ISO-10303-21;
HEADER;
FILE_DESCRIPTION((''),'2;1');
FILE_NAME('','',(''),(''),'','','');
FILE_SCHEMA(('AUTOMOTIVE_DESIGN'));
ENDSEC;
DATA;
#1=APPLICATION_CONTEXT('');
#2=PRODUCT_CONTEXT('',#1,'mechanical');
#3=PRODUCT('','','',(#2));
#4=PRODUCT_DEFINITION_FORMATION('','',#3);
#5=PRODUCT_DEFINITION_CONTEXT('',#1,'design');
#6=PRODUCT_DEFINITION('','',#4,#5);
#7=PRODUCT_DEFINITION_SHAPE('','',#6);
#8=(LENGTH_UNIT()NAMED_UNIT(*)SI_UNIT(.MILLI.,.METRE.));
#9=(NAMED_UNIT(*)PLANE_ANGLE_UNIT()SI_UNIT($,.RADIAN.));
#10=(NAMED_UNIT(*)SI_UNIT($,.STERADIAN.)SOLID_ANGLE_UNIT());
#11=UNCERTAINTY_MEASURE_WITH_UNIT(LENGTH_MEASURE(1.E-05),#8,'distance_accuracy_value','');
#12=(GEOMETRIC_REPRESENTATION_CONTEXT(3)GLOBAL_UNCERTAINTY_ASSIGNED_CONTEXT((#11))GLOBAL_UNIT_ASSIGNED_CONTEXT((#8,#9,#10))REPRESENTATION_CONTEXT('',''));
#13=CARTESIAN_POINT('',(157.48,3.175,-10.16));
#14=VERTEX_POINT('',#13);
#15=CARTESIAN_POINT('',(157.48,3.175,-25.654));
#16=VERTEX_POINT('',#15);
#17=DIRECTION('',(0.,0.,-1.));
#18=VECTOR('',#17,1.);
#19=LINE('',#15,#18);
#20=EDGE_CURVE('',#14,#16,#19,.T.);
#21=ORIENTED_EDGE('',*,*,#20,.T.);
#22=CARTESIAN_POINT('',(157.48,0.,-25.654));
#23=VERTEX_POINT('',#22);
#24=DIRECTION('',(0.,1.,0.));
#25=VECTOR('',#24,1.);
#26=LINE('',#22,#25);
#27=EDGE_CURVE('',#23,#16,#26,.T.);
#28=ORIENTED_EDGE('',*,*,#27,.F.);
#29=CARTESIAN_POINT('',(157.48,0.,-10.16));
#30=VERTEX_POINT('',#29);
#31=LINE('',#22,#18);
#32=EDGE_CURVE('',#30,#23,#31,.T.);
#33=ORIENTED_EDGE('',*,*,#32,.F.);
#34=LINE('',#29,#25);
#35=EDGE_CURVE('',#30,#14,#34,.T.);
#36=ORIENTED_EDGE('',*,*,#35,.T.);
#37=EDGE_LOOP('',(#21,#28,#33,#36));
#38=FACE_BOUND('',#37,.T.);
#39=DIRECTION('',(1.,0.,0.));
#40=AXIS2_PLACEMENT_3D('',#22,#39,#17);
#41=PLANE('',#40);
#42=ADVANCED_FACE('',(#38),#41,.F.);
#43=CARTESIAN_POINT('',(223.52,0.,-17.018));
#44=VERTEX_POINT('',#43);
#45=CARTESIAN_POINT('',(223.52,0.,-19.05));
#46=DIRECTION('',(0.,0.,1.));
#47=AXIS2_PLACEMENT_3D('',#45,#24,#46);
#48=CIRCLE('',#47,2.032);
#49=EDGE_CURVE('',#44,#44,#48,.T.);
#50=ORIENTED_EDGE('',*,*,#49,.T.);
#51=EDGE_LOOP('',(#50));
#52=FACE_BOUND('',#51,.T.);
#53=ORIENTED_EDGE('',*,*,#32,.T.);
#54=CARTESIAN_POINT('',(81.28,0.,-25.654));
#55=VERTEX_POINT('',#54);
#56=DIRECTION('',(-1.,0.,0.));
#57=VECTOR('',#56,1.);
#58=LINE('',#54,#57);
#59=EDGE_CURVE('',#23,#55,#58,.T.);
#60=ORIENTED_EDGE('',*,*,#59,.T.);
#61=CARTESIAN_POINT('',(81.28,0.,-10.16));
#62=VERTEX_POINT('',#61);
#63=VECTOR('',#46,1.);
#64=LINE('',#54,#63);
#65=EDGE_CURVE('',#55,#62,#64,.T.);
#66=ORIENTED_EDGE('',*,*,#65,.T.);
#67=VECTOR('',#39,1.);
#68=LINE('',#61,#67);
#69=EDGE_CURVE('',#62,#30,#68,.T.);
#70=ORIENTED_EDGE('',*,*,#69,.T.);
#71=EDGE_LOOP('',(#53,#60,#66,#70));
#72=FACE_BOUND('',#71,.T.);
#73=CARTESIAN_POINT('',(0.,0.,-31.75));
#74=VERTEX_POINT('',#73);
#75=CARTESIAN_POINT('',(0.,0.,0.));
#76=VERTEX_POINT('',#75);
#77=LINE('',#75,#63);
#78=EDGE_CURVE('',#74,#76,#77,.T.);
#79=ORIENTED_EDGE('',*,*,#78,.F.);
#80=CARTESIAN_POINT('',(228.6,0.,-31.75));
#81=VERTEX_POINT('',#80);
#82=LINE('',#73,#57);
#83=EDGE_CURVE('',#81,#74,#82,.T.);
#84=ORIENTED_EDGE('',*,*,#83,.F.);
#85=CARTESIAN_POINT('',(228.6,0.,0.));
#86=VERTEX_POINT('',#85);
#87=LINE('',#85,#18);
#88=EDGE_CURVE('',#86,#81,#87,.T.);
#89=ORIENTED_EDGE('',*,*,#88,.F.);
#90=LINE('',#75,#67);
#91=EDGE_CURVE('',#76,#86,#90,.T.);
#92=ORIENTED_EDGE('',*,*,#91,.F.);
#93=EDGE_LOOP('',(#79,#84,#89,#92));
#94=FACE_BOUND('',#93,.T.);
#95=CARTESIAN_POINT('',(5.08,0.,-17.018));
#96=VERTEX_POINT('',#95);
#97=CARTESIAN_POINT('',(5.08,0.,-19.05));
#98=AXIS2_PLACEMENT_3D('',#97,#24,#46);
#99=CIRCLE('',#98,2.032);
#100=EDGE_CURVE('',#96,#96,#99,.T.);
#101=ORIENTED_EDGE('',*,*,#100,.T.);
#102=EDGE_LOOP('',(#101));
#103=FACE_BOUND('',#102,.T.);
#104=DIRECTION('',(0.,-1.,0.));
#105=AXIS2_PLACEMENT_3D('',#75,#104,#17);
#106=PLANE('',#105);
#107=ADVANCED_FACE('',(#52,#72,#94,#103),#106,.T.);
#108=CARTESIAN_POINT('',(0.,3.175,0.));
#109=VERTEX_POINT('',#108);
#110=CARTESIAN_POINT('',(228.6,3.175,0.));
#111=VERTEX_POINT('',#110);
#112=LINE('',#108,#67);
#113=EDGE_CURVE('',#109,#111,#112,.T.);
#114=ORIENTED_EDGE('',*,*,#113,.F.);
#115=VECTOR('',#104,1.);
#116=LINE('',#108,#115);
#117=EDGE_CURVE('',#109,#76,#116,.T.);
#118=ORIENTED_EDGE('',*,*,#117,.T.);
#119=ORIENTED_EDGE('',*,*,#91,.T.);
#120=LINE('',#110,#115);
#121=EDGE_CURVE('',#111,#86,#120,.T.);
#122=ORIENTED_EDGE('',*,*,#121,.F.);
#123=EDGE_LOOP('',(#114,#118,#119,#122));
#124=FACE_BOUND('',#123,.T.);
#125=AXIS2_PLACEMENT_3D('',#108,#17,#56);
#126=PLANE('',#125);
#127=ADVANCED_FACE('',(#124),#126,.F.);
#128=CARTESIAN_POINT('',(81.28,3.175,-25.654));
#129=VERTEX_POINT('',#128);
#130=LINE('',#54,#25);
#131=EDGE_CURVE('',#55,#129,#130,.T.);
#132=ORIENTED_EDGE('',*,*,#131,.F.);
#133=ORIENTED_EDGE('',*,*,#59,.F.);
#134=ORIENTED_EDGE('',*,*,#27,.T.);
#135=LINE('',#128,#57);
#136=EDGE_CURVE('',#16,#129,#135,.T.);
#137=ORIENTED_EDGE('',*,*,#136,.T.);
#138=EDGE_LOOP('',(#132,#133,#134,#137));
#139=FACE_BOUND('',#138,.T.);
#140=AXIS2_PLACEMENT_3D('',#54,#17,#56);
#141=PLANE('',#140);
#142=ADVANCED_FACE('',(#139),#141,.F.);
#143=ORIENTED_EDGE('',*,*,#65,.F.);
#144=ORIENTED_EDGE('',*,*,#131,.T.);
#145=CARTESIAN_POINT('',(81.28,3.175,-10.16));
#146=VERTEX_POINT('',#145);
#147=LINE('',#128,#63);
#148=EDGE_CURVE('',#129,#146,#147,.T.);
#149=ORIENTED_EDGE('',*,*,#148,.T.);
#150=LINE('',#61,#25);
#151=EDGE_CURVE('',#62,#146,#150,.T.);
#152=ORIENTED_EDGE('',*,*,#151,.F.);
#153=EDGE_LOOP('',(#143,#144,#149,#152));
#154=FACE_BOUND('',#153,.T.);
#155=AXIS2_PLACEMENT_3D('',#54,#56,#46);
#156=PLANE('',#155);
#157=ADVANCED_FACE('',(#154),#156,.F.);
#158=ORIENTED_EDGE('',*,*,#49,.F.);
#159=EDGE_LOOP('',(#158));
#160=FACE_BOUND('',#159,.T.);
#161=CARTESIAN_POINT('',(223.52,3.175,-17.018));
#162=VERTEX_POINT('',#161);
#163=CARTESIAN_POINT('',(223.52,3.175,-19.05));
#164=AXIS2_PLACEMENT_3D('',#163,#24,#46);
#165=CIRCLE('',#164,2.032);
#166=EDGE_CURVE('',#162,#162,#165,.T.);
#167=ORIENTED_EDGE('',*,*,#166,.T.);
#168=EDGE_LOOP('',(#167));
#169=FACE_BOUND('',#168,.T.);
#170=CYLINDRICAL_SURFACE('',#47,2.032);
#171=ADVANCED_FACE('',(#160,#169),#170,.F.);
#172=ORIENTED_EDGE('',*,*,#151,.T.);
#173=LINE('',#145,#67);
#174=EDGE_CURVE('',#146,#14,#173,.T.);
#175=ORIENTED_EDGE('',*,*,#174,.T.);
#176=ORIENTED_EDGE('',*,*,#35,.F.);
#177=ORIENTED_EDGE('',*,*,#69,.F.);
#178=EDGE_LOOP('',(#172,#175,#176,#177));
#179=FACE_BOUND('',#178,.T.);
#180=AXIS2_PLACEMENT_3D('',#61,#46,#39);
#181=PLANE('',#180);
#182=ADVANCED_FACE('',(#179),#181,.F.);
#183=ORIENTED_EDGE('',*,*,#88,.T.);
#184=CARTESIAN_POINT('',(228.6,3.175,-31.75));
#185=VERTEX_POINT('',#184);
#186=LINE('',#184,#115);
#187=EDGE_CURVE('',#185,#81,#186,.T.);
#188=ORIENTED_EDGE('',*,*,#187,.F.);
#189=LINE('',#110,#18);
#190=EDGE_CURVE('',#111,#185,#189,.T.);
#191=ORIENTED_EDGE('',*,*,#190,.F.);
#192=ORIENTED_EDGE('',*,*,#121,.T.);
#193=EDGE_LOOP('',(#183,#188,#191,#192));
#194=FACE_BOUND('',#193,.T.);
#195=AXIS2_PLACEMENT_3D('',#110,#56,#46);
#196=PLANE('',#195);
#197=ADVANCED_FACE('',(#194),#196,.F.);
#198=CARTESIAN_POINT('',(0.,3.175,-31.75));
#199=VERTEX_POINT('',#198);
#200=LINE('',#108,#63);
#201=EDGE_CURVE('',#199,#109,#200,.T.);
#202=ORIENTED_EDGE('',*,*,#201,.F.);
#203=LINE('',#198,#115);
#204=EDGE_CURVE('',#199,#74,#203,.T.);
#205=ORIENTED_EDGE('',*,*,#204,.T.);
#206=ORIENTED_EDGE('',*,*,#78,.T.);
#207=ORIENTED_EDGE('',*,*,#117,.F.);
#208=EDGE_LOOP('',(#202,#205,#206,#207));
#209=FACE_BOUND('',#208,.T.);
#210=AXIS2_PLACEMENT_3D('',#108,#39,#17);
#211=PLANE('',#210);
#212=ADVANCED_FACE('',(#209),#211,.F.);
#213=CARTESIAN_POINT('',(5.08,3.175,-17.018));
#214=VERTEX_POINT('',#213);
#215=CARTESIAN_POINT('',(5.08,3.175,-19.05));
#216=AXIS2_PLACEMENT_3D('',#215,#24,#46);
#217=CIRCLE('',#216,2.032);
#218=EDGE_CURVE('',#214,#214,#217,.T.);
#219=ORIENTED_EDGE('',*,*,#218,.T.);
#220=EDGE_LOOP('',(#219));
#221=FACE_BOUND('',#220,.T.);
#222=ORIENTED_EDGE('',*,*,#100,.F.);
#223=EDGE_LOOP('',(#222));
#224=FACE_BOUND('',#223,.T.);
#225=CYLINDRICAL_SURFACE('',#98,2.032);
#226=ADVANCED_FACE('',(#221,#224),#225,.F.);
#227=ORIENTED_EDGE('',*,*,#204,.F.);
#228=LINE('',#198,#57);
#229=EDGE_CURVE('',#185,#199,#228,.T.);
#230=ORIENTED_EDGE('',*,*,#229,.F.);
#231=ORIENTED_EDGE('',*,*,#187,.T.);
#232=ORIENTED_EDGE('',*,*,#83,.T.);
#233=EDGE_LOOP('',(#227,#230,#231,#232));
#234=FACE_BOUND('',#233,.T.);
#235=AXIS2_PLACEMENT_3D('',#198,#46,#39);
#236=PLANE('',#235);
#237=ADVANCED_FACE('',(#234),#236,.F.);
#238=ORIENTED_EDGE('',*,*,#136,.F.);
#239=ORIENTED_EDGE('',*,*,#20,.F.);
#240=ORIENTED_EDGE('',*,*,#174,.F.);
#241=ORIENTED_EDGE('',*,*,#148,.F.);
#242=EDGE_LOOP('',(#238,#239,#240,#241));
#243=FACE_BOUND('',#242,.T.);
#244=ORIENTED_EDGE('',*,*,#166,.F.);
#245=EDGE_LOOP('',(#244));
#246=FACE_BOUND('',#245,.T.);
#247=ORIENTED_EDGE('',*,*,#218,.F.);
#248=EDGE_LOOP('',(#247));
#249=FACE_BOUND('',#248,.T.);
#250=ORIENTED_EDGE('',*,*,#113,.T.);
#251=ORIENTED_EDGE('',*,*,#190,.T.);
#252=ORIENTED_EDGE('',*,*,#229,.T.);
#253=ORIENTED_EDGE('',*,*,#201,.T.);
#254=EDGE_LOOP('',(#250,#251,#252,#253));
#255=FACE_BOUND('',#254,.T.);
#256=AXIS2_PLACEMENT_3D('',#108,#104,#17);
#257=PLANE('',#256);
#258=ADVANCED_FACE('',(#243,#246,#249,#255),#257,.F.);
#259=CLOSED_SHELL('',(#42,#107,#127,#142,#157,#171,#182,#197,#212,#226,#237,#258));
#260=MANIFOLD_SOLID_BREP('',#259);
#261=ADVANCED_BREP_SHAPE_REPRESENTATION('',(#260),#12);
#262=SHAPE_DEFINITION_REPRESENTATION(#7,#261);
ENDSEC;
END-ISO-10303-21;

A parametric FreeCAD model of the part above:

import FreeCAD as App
import Part
import Sketcher
Q = App.Units.Quantity


def add_polygon(sketch, points):
    """Adds a closed chain of lines whose ends are joined by coincident constraints."""
    first, n = sketch.GeometryCount, len(points)
    for a, b in zip(points, points[1:] + points[:1]):
        sketch.addGeometry(Part.LineSegment(App.Vector(*a, 0), App.Vector(*b, 0)), False)
    for i in range(n):
        sketch.addConstraint(Sketcher.Constraint("Coincident", first + i, 2, first + (i + 1) % n, 1))

doc = App.newDocument("Part")
body = doc.addObject("PartDesign::Body", "Body")

# Sketch on XZ plane
sketch1 = body.newObject("Sketcher::SketchObject", "Sketch")
sketch1.AttachmentSupport = (doc.getObject("XZ_Plane"), [""])
sketch1.MapMode = "FlatFace"
add_polygon(sketch1, [(0, -32), (0, 0), (229, 0), (229, -32)])  # lines 0-3
sketch1.addConstraint(Sketcher.Constraint("Vertical", 0))
sketch1.addConstraint(Sketcher.Constraint("Horizontal", 1))
sketch1.addConstraint(Sketcher.Constraint("Vertical", 2))
sketch1.addConstraint(Sketcher.Constraint("Horizontal", 3))
sketch1.addConstraint(Sketcher.Constraint("Coincident", 0, 2, -1, 1))
sketch1.addConstraint(Sketcher.Constraint("DistanceX", 1, 1, 1, 2, Q("9 in")))
sketch1.addConstraint(Sketcher.Constraint("DistanceY", 0, 1, 0, 2, Q("1.25 in")))
pad1 = body.newObject("PartDesign::Pad", "Pad")
pad1.Profile = sketch1
pad1.Length = Q("0.125 in")
pad1.Reversed = True

# Sketch on XZ plane
sketch2 = body.newObject("Sketcher::SketchObject", "Sketch001")
sketch2.AttachmentSupport = (doc.getObject("XZ_Plane"), [""])
sketch2.MapMode = "FlatFace"
sketch2.AttachmentOffset = App.Placement(App.Vector(0, 0, -0.125 * 25.4), App.Rotation())
sketch2.addGeometry(Part.Circle(App.Vector(5.1, -19.1, 0), App.Vector(0, 0, 1), 2), False)
sketch2.addGeometry(Part.Circle(App.Vector(223.5, -19.1, 0), App.Vector(0, 0, 1), 2), False)
sketch2.addConstraint(Sketcher.Constraint("Equal", 0, 1))
sketch2.addConstraint(Sketcher.Constraint("Horizontal", 0, 3, 1, 3))
sketch2.addConstraint(Sketcher.Constraint("Diameter", 0, Q("0.16 in")))
sketch2.addConstraint(Sketcher.Constraint("DistanceX", -1, 1, 0, 3, Q("0.2 in")))
sketch2.addConstraint(Sketcher.Constraint("DistanceX", -1, 1, 1, 3, Q("8.8 in")))
sketch2.addConstraint(Sketcher.Constraint("DistanceY", 0, 3, -1, 1, Q("0.75 in")))
pocket1 = body.newObject("PartDesign::Pocket", "Pocket")
pocket1.Profile = sketch2
pocket1.Length = Q("0.125 in")
pocket1.Reversed = True

# Sketch on XZ plane
sketch3 = body.newObject("Sketcher::SketchObject", "Sketch002")
sketch3.AttachmentSupport = (doc.getObject("XZ_Plane"), [""])
sketch3.MapMode = "FlatFace"
sketch3.AttachmentOffset = App.Placement(App.Vector(0, 0, -0.125 * 25.4), App.Rotation())
add_polygon(sketch3, [(81, -26), (81, -10), (157, -10), (157, -26)])  # lines 0-3
sketch3.addConstraint(Sketcher.Constraint("Vertical", 0))
sketch3.addConstraint(Sketcher.Constraint("Horizontal", 1))
sketch3.addConstraint(Sketcher.Constraint("Vertical", 2))
sketch3.addConstraint(Sketcher.Constraint("Horizontal", 3))
sketch3.addConstraint(Sketcher.Constraint("DistanceX", 1, 1, 1, 2, Q("3 in")))
sketch3.addConstraint(Sketcher.Constraint("DistanceY", 0, 1, 0, 2, Q("0.61 in")))
sketch3.addConstraint(Sketcher.Constraint("DistanceX", -1, 1, 0, 2, Q("3.2 in")))
sketch3.addConstraint(Sketcher.Constraint("DistanceY", 0, 2, -1, 1, Q("0.4 in")))
pocket2 = body.newObject("PartDesign::Pocket", "Pocket001")
pocket2.Profile = sketch3
pocket2.Length = Q("0.125 in")
pocket2.Reversed = True

doc.recompute()
